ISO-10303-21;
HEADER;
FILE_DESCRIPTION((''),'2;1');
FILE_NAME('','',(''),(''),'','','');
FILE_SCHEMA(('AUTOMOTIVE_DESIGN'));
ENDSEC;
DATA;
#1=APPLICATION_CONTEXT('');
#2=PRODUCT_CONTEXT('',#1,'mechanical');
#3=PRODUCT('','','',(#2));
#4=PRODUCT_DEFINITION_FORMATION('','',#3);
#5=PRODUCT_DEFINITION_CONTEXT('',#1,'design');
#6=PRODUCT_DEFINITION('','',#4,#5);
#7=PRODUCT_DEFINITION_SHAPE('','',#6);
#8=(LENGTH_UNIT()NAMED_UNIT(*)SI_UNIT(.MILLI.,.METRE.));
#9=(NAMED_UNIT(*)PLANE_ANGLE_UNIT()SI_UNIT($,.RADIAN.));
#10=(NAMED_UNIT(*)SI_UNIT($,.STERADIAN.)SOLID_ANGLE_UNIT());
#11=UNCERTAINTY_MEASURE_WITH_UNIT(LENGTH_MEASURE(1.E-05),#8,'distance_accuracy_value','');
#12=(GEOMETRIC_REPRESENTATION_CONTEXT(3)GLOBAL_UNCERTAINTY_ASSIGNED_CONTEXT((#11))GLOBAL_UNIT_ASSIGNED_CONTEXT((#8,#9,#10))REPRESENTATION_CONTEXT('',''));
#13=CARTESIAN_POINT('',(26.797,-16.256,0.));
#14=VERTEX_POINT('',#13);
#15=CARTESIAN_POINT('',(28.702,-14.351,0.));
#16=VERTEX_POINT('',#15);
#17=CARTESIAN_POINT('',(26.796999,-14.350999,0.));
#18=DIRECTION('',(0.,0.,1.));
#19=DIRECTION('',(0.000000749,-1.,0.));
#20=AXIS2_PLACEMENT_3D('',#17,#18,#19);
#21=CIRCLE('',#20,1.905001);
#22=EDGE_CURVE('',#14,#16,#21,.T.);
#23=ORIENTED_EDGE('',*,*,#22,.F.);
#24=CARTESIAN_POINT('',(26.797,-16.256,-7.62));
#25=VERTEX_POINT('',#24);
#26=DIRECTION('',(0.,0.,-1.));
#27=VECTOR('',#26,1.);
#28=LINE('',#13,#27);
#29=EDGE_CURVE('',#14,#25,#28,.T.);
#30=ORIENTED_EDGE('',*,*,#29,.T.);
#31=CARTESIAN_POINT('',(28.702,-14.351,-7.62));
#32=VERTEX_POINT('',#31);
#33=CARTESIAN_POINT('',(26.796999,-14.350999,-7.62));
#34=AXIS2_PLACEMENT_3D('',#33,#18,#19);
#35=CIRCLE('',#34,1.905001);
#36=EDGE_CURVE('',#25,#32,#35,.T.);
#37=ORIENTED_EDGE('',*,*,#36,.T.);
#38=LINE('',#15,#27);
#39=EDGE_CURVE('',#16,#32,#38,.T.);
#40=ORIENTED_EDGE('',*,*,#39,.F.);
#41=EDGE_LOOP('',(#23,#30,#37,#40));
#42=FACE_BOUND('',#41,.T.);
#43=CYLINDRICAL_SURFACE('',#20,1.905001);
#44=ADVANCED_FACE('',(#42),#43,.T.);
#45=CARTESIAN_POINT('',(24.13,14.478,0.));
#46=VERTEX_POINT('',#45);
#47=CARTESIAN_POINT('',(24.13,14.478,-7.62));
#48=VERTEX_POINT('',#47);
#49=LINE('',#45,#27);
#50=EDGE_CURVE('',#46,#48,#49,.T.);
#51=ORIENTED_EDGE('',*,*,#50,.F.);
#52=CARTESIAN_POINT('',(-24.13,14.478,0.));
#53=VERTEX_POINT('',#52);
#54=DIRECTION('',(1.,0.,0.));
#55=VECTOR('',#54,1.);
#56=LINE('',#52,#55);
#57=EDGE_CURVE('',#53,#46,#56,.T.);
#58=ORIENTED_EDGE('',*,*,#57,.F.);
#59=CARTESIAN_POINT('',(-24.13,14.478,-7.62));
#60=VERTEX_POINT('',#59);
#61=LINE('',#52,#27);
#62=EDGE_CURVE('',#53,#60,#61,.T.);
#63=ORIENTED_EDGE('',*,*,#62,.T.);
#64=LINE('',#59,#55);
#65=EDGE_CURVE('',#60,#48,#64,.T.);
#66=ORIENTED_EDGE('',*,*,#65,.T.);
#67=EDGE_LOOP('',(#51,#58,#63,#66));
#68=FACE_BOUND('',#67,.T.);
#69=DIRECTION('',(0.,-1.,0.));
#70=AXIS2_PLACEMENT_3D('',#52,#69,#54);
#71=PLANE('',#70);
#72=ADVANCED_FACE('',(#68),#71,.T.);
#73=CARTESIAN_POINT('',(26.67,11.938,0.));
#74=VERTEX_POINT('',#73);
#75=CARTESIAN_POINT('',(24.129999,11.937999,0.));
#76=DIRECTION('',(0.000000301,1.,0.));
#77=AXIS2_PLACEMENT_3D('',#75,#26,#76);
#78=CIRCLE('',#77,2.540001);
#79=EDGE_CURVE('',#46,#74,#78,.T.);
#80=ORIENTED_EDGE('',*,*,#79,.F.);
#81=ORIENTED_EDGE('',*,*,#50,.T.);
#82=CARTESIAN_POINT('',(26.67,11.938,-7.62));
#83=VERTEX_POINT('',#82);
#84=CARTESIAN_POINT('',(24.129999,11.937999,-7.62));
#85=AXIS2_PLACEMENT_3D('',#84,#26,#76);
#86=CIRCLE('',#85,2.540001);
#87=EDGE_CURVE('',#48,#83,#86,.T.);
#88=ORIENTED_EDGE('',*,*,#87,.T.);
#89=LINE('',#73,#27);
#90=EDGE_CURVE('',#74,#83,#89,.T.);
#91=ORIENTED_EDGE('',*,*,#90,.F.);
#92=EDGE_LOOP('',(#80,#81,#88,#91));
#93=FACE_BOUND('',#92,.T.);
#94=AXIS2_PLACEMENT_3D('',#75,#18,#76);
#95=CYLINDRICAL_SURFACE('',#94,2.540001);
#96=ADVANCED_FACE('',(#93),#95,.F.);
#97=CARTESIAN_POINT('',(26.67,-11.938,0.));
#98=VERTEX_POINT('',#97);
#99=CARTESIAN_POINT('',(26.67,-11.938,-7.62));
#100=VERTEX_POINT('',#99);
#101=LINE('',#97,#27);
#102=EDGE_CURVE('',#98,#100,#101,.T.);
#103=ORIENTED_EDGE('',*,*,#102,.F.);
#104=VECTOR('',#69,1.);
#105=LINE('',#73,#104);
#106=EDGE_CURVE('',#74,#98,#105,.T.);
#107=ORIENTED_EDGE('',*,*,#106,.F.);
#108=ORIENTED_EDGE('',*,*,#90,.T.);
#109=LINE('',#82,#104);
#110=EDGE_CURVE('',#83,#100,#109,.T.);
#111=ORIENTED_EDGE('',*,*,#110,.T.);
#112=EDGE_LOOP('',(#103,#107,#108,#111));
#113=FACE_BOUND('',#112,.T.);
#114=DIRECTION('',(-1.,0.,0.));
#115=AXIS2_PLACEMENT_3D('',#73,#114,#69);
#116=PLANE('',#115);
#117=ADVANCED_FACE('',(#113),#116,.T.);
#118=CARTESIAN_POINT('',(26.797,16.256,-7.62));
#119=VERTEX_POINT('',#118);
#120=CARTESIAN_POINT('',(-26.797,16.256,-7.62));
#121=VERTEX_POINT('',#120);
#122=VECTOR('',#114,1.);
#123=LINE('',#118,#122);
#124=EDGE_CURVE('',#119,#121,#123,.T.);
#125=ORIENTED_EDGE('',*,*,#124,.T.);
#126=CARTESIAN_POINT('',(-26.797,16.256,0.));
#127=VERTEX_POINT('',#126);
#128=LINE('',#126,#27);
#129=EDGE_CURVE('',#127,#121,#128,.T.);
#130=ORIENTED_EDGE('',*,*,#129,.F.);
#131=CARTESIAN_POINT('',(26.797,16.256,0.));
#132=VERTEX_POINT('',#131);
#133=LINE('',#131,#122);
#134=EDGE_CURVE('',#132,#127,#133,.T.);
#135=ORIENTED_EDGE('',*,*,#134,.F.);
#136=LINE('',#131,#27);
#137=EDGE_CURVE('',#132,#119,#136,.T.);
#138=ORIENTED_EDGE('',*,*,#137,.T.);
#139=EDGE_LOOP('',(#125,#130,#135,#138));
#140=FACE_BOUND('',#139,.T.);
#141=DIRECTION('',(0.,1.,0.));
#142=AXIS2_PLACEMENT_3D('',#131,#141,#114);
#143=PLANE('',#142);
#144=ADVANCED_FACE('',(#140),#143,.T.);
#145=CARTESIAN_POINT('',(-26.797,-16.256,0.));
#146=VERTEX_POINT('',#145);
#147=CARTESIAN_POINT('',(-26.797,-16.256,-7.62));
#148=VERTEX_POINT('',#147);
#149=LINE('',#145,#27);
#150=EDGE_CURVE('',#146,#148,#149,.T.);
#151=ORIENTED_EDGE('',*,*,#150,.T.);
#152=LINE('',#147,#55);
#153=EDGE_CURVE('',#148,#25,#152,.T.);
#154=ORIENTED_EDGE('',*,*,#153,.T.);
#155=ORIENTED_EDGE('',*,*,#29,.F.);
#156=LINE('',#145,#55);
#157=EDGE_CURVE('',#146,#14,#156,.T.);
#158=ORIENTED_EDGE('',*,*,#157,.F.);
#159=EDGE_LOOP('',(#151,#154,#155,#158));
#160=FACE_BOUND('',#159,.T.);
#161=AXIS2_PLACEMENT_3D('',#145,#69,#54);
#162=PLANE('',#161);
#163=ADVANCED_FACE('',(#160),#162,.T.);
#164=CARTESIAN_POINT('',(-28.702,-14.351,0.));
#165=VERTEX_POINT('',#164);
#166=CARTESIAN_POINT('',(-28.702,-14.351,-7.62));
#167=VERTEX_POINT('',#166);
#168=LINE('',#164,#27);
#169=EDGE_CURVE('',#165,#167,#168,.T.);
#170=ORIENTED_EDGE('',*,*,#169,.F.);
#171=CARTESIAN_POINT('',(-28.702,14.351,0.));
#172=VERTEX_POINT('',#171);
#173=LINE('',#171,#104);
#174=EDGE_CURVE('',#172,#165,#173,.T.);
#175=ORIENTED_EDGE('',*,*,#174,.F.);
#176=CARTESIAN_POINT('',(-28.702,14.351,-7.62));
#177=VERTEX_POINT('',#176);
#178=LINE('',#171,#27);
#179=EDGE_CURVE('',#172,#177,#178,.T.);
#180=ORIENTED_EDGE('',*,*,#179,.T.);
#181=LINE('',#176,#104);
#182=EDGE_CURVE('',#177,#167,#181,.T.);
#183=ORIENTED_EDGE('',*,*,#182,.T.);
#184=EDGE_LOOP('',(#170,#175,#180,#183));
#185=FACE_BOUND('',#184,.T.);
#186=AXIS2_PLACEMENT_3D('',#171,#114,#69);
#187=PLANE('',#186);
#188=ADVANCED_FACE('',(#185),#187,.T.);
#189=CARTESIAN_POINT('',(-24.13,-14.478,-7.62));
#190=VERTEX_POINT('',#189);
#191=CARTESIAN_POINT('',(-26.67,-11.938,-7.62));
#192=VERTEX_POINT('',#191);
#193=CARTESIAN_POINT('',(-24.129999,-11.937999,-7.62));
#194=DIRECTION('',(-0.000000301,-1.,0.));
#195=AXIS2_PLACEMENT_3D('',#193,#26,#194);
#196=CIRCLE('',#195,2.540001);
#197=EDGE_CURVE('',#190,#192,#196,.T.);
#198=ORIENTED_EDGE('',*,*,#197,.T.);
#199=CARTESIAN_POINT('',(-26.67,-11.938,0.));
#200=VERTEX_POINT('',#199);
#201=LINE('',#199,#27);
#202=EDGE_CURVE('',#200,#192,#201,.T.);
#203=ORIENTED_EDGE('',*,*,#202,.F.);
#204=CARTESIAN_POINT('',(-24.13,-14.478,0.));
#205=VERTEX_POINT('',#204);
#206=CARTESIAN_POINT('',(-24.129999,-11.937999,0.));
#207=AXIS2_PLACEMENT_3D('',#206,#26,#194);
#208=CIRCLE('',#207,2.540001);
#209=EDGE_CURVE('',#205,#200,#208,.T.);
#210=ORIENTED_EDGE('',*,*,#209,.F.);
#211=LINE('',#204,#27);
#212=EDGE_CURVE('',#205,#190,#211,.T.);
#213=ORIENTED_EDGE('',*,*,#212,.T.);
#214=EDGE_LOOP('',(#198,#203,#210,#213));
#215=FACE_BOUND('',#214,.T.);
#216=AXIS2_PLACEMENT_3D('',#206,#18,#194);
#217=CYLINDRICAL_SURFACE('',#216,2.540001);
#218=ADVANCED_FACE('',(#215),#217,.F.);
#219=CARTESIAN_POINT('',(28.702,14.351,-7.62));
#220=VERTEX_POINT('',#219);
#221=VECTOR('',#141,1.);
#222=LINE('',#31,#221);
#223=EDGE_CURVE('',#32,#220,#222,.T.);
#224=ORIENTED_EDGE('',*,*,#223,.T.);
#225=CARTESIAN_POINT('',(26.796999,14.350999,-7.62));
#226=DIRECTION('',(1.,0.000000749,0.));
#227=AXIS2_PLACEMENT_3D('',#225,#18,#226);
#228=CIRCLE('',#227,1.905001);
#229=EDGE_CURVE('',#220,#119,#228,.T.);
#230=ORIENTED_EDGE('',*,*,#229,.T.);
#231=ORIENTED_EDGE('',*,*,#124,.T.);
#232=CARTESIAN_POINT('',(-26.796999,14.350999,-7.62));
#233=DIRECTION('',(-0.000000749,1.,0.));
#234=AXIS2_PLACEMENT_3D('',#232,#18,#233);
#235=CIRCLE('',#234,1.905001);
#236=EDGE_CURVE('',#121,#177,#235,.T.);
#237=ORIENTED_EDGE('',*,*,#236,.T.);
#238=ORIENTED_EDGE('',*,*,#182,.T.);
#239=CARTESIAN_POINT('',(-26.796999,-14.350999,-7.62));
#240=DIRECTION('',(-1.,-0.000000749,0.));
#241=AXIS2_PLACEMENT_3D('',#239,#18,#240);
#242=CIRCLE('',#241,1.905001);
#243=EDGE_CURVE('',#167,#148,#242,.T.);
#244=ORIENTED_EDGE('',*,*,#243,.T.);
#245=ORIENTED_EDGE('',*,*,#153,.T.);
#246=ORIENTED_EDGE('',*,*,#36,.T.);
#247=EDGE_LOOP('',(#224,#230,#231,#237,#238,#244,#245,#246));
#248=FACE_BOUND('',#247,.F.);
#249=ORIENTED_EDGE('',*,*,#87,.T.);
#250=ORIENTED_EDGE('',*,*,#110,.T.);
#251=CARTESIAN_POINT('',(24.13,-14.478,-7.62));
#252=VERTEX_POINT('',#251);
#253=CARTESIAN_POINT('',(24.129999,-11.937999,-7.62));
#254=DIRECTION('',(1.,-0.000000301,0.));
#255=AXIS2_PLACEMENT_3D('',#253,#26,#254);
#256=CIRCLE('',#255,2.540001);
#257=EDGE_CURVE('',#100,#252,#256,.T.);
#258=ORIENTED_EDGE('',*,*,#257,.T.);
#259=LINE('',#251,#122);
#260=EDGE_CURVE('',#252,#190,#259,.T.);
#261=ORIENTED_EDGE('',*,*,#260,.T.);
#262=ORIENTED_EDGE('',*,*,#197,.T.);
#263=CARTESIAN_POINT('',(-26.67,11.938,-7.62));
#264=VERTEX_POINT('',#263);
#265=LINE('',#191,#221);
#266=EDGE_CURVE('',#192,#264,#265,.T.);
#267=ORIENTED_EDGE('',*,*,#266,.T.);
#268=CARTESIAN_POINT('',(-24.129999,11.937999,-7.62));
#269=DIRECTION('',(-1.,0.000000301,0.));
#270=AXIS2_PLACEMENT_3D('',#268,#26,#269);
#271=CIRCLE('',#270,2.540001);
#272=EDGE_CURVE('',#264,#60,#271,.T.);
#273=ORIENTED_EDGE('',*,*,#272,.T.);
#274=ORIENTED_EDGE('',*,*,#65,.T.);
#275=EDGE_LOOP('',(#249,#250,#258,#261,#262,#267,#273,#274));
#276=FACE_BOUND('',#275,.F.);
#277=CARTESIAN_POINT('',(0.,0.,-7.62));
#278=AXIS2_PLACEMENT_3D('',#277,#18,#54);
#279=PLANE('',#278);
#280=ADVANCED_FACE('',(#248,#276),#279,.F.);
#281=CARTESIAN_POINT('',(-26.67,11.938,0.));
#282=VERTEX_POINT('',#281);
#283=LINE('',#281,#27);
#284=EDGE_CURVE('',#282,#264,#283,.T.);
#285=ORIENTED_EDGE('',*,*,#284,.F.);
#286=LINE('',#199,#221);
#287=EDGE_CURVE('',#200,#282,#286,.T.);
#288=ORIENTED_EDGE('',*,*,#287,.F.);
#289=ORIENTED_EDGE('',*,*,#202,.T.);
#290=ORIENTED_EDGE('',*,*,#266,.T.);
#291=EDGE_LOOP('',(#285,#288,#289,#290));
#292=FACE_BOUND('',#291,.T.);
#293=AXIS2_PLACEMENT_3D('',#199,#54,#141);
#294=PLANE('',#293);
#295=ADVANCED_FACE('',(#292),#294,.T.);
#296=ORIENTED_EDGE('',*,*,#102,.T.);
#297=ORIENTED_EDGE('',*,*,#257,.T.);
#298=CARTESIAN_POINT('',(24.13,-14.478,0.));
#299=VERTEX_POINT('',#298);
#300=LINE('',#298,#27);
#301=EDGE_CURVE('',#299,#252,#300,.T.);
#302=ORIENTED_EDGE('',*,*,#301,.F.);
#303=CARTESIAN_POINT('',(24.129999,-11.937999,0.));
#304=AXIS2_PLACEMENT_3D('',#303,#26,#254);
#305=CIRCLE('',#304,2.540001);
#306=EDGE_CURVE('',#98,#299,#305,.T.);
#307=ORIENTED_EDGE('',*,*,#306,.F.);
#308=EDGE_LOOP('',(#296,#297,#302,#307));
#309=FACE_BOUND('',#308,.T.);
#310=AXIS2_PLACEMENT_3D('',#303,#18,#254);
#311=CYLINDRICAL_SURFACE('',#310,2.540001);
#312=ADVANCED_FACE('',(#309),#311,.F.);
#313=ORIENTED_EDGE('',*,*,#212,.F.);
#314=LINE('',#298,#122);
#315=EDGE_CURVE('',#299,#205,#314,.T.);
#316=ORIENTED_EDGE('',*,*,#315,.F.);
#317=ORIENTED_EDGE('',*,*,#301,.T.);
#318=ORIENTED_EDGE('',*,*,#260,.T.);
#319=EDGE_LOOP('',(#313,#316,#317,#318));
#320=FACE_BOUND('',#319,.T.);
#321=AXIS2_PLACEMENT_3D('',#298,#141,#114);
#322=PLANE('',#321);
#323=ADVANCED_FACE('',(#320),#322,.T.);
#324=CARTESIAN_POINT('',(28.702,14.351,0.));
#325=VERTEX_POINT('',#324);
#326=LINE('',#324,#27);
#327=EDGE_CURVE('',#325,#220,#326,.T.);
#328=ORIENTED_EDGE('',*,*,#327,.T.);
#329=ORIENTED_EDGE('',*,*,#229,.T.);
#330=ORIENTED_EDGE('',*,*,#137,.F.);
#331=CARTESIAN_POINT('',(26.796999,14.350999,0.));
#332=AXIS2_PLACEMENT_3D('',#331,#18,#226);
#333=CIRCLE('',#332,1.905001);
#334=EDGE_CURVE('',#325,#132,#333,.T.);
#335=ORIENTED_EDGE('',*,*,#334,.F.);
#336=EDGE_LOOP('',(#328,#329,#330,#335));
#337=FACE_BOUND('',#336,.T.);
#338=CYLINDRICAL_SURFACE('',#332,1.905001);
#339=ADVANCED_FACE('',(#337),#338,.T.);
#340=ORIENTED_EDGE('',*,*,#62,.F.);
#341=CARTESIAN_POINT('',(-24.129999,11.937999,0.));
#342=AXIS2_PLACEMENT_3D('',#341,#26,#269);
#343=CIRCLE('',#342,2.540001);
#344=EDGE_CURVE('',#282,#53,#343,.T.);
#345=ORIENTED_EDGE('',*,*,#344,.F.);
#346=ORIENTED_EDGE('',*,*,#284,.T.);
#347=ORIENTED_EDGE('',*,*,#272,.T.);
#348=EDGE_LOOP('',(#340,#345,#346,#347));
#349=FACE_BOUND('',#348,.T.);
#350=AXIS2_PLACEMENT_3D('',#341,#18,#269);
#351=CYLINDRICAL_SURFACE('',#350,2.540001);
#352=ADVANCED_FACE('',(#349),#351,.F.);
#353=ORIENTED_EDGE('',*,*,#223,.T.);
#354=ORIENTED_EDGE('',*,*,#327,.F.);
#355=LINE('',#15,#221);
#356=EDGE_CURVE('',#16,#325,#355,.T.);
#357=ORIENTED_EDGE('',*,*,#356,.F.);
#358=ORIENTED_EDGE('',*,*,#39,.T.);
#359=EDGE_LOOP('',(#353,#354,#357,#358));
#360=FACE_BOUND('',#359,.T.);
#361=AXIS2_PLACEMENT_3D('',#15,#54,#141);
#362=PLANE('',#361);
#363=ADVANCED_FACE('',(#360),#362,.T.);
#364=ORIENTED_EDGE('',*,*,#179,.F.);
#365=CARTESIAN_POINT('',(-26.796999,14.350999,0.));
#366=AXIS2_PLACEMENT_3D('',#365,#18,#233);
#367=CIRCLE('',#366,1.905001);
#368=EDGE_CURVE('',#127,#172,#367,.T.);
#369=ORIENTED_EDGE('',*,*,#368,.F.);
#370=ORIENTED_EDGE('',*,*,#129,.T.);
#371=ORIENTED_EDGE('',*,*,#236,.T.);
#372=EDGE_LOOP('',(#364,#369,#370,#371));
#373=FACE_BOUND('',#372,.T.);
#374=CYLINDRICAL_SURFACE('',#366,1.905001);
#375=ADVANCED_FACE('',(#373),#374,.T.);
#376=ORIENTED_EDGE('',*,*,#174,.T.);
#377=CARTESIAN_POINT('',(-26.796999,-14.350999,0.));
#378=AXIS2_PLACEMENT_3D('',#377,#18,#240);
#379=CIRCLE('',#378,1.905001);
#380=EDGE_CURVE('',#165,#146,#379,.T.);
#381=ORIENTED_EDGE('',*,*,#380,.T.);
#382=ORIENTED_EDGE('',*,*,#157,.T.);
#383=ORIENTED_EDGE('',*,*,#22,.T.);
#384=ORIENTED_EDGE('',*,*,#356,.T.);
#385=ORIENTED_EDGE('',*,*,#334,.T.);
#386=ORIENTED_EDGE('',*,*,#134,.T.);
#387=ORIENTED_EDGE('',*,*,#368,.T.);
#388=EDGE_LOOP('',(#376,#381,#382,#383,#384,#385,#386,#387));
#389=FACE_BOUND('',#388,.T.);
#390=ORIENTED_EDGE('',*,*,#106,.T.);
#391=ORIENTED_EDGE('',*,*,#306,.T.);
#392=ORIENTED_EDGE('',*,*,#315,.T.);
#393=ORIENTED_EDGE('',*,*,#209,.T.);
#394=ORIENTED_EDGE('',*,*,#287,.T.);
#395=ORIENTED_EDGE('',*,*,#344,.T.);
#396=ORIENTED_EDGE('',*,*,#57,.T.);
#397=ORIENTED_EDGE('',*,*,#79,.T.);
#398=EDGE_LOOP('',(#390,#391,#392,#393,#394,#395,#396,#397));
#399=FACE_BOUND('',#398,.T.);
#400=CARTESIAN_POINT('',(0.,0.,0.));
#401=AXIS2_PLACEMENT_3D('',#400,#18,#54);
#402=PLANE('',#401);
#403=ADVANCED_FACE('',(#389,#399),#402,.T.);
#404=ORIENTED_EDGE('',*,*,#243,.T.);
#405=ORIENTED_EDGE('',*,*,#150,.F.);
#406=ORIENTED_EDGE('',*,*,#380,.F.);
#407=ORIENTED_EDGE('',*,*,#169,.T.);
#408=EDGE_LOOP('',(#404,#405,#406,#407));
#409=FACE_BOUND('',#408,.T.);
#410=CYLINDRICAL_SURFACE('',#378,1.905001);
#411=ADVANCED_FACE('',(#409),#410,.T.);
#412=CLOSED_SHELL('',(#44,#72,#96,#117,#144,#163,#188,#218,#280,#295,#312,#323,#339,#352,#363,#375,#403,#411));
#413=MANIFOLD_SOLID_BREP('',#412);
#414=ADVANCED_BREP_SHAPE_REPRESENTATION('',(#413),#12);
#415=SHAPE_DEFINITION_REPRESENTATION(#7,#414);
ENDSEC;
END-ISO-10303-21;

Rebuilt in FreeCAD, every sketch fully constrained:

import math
import FreeCAD as App
import Part
import Sketcher
Q = App.Units.Quantity

doc = App.newDocument("Part")
body = doc.addObject("PartDesign::Body", "Body")

# Sketch on XY plane
sketch1 = doc.addObject("Sketcher::SketchObject", "Sketch")
body.addObject(sketch1)
sketch1.AttachmentSupport = (doc.XY_Plane, [""])
sketch1.MapMode = "FlatFace"
sketch1.addGeometry([
    Part.ArcOfCircle(Part.Circle(App.Vector(26.796999, 14.350999, 0), App.Vector(0, 0, 1), 1.905001), math.radians(0.000043), math.radians(89.999957)),  # 0
    Part.LineSegment(App.Vector(26.797, 16.256, 0), App.Vector(-26.797, 16.256, 0)),  # 1
    Part.ArcOfCircle(Part.Circle(App.Vector(-26.796999, 14.350999, 0), App.Vector(0, 0, 1), 1.905001), math.radians(90.000043), math.radians(179.999957)),  # 2
    Part.LineSegment(App.Vector(-28.702, 14.351, 0), App.Vector(-28.702, -14.351, 0)),  # 3
    Part.ArcOfCircle(Part.Circle(App.Vector(-26.796999, -14.350999, 0), App.Vector(0, 0, 1), 1.905001), math.radians(-179.999957), math.radians(-90.000043)),  # 4
    Part.LineSegment(App.Vector(-26.797, -16.256, 0), App.Vector(26.797, -16.256, 0)),  # 5
    Part.ArcOfCircle(Part.Circle(App.Vector(26.796999, -14.350999, 0), App.Vector(0, 0, 1), 1.905001), math.radians(-89.999957), math.radians(-0.000043)),  # 6
    Part.LineSegment(App.Vector(28.702, -14.351, 0), App.Vector(28.702, 14.351, 0)),  # 7
    Part.ArcOfCircle(Part.Circle(App.Vector(-24.129999, 11.937999, 0), App.Vector(0, 0, 1), 2.540001), math.radians(90.000017), math.radians(179.999983)),  # 8
    Part.LineSegment(App.Vector(-24.13, 14.478, 0), App.Vector(24.13, 14.478, 0)),  # 9
    Part.ArcOfCircle(Part.Circle(App.Vector(24.129999, 11.937999, 0), App.Vector(0, 0, 1), 2.540001), math.radians(0.000017), math.radians(89.999983)),  # 10
    Part.LineSegment(App.Vector(26.67, 11.938, 0), App.Vector(26.67, -11.938, 0)),  # 11
    Part.ArcOfCircle(Part.Circle(App.Vector(24.129999, -11.937999, 0), App.Vector(0, 0, 1), 2.540001), math.radians(-89.999983), math.radians(-0.000017)),  # 12
    Part.LineSegment(App.Vector(24.13, -14.478, 0), App.Vector(-24.13, -14.478, 0)),  # 13
    Part.ArcOfCircle(Part.Circle(App.Vector(-24.129999, -11.937999, 0), App.Vector(0, 0, 1), 2.540001), math.radians(-179.999983), math.radians(-90.000017)),  # 14
    Part.LineSegment(App.Vector(-26.67, -11.938, 0), App.Vector(-26.67, 11.938, 0)),  # 15
], False)
sketch1.addConstraint([
    Sketcher.Constraint("Tangent", 0, 2, 1, 1),
    Sketcher.Constraint("Tangent", 1, 2, 2, 1),
    Sketcher.Constraint("Tangent", 2, 2, 3, 1),
    Sketcher.Constraint("Tangent", 3, 2, 4, 1),
    Sketcher.Constraint("Tangent", 4, 2, 5, 1),
    Sketcher.Constraint("Tangent", 5, 2, 6, 1),
    Sketcher.Constraint("Tangent", 6, 2, 7, 1),
    Sketcher.Constraint("Tangent", 7, 2, 0, 1),
    Sketcher.Constraint("Tangent", 8, 1, 9, 1),
    Sketcher.Constraint("Tangent", 9, 2, 10, 2),
    Sketcher.Constraint("Tangent", 10, 1, 11, 1),
    Sketcher.Constraint("Tangent", 11, 2, 12, 2),
    Sketcher.Constraint("Tangent", 12, 1, 13, 1),
    Sketcher.Constraint("Tangent", 13, 2, 14, 2),
    Sketcher.Constraint("Tangent", 14, 1, 15, 1),
    Sketcher.Constraint("Tangent", 15, 2, 8, 2),
    Sketcher.Constraint("Horizontal", 1),
    Sketcher.Constraint("Vertical", 3),
    Sketcher.Constraint("Horizontal", 5),
    Sketcher.Constraint("Vertical", 7),
    Sketcher.Constraint("Horizontal", 9),
    Sketcher.Constraint("Vertical", 11),
    Sketcher.Constraint("Horizontal", 13),
    Sketcher.Constraint("Vertical", 15),
    Sketcher.Constraint("Equal", 0, 2),
    Sketcher.Constraint("Equal", 2, 4),
    Sketcher.Constraint("Equal", 4, 6),
    Sketcher.Constraint("Equal", 8, 10),
    Sketcher.Constraint("Equal", 10, 12),
    Sketcher.Constraint("Equal", 12, 14),
    Sketcher.Constraint("Symmetric", 0, 3, 4, 3, -1, 1),
    Sketcher.Constraint("Symmetric", 8, 3, 12, 3, -1, 1),
    Sketcher.Constraint("Radius", 8, Q("0.1 in")),
    Sketcher.Constraint("DistanceX", 9, 1, 9, 2, Q("1.9 in")),
    Sketcher.Constraint("Radius", 0, Q("0.0750001 in")),
    Sketcher.Constraint("DistanceX", 1, 2, 1, 1, Q("2.11 in")),
    Sketcher.Constraint("DistanceY", 3, 2, 3, 1, Q("1.13 in")),
    Sketcher.Constraint("DistanceY", 11, 2, 11, 1, Q("0.94 in")),
])
pad1 = doc.addObject("PartDesign::Pad", "Pad")
body.addObject(pad1)
pad1.Profile = sketch1
pad1.Length = Q("0.3 in")
pad1.Reversed = True

doc.recompute()
